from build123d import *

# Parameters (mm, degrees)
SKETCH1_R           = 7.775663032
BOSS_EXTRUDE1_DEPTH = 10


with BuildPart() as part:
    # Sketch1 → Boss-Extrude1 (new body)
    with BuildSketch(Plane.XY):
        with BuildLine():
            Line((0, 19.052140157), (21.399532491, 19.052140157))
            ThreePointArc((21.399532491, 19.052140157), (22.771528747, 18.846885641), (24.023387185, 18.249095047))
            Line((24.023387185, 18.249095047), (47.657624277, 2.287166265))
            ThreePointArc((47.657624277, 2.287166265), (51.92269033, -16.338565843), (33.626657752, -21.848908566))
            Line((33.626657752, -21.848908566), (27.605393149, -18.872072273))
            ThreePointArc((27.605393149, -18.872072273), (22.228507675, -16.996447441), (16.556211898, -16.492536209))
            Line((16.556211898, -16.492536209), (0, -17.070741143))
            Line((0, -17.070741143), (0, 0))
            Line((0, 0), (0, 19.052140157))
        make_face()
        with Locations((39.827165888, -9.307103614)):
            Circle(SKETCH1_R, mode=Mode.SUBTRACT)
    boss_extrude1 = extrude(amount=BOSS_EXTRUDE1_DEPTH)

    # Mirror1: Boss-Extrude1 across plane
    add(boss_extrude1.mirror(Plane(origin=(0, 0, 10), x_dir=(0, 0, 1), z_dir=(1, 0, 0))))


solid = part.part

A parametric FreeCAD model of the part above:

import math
import FreeCAD as App
import Part
import Sketcher
from FreeCAD import Vector

doc = App.newDocument("Part")
body = doc.addObject("PartDesign::Body", "Body")

# Sketch on XY plane
sketch1 = body.newObject("Sketcher::SketchObject", "Sketch")
sketch1.AttachmentSupport = (doc.getObject("XY_Plane"), [""])
sketch1.MapMode = "FlatFace"
sketch1.addGeometry(Part.LineSegment(Vector(21.399532, 19.05214, 0), Vector(0, 19.05214, 0)), False)
sketch1.addGeometry(Part.LineSegment(Vector(0, 19.05214, 0), Vector(0, -17.070741, 0)), False)
sketch1.addGeometry(Part.LineSegment(Vector(0, -17.070741, 0), Vector(16.556212, -16.492536, 0)), False)
sketch1.addGeometry(Part.ArcOfCircle(Part.Circle(Vector(17.362852, -39.589721, 0), Vector(0, 0, 1), 23.111266), math.radians(63.692797), math.radians(92.00017)), False)
sketch1.addGeometry(Part.LineSegment(Vector(27.605393, -18.872072, 0), Vector(33.626658, -21.848909, 0)), False)
sketch1.addGeometry(Part.ArcOfCircle(Part.Circle(Vector(39.827166, -9.307104, 0), Vector(0, 0, 1), 13.990825), math.radians(-116.307203), math.radians(55.965965)), False)
sketch1.addGeometry(Part.LineSegment(Vector(47.657624, 2.287166, 0), Vector(24.023387, 18.249095, 0)), False)
sketch1.addGeometry(Part.ArcOfCircle(Part.Circle(Vector(21.399532, 14.364051, 0), Vector(0, 0, 1), 4.68809), math.radians(55.965965), math.radians(90)), False)
sketch1.addGeometry(Part.Circle(Vector(39.827166, -9.307104, 0), Vector(0, 0, 1), 7.775663), False)
sketch1.addConstraint(Sketcher.Constraint("Coincident", 0, 2, 1, 1))
sketch1.addConstraint(Sketcher.Constraint("Coincident", 1, 2, 2, 1))
sketch1.addConstraint(Sketcher.Constraint("Tangent", 2, 2, 3, 2))
sketch1.addConstraint(Sketcher.Constraint("Tangent", 3, 1, 4, 1))
sketch1.addConstraint(Sketcher.Constraint("Tangent", 4, 2, 5, 1))
sketch1.addConstraint(Sketcher.Constraint("Tangent", 5, 2, 6, 1))
sketch1.addConstraint(Sketcher.Constraint("Tangent", 6, 2, 7, 1))
sketch1.addConstraint(Sketcher.Constraint("Tangent", 7, 2, 0, 1))
sketch1.addConstraint(Sketcher.Constraint("Horizontal", 0))
sketch1.addConstraint(Sketcher.Constraint("Vertical", 1))
sketch1.addConstraint(Sketcher.Constraint("Coincident", 8, 3, 5, 3))
sketch1.addConstraint(Sketcher.Constraint("PointOnObject", 0, 2, -2))
sketch1.addConstraint(Sketcher.Constraint("Radius", 7, 4.68809))
sketch1.addConstraint(Sketcher.Constraint("Diameter", 8, 15.551326))
sketch1.addConstraint(Sketcher.Constraint("Radius", 3, 23.111266))
sketch1.addConstraint(Sketcher.Constraint("Radius", 5, 13.990825))
sketch1.addConstraint(Sketcher.Constraint("DistanceY", 1, 2, 1, 1, 36.122881))
sketch1.addConstraint(Sketcher.Constraint("DistanceY", 5, 3, 6, 2, 27.556199))
sketch1.addConstraint(Sketcher.Constraint("DistanceX", 0, 2, 0, 1, 21.399532))
sketch1.addConstraint(Sketcher.Constraint("DistanceY", 3, 3, -1, 1, 39.589721))
sketch1.addConstraint(Sketcher.Constraint("DistanceY", -1, 1, 7, 3, 14.364051))
sketch1.addConstraint(Sketcher.Constraint("DistanceX", -1, 1, 2, 2, 16.556212))
sketch1.addConstraint(Sketcher.Constraint("DistanceY", 4, 2, -1, 1, 21.848909))
pad1 = body.newObject("PartDesign::Pad", "Pad")
pad1.Profile = sketch1
pad1.Length = 10
doc.recompute()

mirrored = body.newObject("PartDesign::Mirrored", "Mirrored")
mirrored.Originals = [pad1]
mirrored.MirrorPlane = (doc.getObject("YZ_Plane"), [""])
body.Tip = mirrored

doc.recompute()
